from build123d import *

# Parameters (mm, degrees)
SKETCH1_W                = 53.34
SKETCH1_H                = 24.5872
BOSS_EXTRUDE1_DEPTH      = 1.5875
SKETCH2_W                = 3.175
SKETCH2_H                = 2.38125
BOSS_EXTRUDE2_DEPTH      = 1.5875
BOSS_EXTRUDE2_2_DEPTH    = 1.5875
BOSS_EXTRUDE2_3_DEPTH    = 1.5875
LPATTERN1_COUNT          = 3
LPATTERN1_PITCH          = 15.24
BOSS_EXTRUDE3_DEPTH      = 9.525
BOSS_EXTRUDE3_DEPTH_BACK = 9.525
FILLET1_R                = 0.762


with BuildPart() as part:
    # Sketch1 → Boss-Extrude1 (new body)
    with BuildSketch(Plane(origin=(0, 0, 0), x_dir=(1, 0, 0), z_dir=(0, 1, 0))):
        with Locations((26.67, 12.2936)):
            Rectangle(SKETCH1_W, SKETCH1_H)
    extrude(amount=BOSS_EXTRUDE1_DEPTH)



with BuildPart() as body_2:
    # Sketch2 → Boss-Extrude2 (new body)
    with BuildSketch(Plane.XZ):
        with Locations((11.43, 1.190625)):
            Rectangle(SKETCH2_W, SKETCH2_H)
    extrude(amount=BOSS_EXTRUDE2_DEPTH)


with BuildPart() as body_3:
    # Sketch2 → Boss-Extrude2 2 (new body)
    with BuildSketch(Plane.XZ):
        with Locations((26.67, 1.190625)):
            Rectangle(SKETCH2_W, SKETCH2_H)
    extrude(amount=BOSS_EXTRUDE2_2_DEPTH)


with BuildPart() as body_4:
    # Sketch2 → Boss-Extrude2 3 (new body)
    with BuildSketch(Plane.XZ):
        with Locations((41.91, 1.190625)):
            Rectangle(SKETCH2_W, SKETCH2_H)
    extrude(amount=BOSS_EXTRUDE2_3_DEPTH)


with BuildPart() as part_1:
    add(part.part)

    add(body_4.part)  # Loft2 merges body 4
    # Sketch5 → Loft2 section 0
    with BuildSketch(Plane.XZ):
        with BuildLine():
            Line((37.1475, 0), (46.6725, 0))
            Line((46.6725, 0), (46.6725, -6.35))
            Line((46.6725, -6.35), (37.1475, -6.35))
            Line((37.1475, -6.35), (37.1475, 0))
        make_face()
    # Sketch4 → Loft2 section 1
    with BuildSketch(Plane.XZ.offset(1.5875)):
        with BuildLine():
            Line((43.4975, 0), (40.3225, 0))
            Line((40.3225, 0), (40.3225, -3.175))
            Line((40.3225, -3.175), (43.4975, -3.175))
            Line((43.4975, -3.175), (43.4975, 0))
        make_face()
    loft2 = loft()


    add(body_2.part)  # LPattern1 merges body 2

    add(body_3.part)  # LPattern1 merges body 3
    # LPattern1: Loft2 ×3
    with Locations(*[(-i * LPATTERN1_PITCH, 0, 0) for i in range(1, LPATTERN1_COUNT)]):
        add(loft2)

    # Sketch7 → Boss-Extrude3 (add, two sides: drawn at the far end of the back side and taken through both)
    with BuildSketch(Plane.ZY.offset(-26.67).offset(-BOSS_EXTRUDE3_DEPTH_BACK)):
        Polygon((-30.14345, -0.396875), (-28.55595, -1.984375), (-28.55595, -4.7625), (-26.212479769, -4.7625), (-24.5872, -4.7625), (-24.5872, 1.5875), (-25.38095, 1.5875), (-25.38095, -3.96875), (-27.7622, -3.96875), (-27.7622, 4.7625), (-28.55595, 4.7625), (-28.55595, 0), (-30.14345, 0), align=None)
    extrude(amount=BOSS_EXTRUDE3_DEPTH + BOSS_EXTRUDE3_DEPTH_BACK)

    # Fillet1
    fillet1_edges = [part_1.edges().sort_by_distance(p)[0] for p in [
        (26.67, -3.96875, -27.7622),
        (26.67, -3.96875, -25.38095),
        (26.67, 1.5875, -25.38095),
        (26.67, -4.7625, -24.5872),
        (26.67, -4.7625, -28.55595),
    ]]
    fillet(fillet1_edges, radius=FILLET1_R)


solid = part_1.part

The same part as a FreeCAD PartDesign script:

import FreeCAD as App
import Part
import Sketcher
from FreeCAD import Vector
Q = App.Units.Quantity


def edges_at(feature, points):
    """Names of the edges that pass closest to the given points."""
    edges = feature.Shape.Edges
    near = lambda p: min(range(len(edges)), key=lambda i: edges[i].distToShape(Part.Vertex(*p))[0])
    return sorted({f"Edge{near(p) + 1}" for p in points})

doc = App.newDocument("Part")
params = doc.addObject("Spreadsheet::Sheet", "Params")
for row, (alias, value) in enumerate([
    ("sketch1_width", "2.1 in"),
    ("sketch1_height", "0.968 in"),
    ("pad1_length", "0.0625 in"),
    ("sketch2_width", "0.125 in"),
    ("sketch2_height", "0.09375 in"),
    ("pad2_length", "0.0625 in"),
    ("sketch3_width", "0.125 in"),
    ("sketch3_height", "0.09375 in"),
    ("pad3_length", "0.0625 in"),
    ("sketch4_width", "0.125 in"),
    ("sketch4_height", "0.09375 in"),
    ("pad4_length", "0.0625 in"),
    ("sketch5_height", "0.25 in"),
    ("sketch5_width", "0.375 in"),
    ("sketch6_width", "0.125 in"),
    ("linearpattern_pitch", "0.6 in"),
    ("sketch7_width", "0.25 in"),
    ("sketch7_width2", "0.109375 in"),
    ("sketch7_width3", "0.21875 in"),
    ("sketch7_width4", "0.34375 in"),
    ("sketch7_width5", "0.015625 in"),
    ("pad5_length", "0.375 in"),
    ("pad5_length2", "0.375 in"),
    ("fillet_radius", "0.03 in"),
], start=1):
    params.set(f"A{row}", alias)
    params.set(f"B{row}", "=" + value)
    params.setAlias(f"B{row}", alias)

body = doc.addObject("PartDesign::Body", "Body")

# Sketch on XZ plane
sketch1 = doc.addObject("Sketcher::SketchObject", "Sketch")
body.addObject(sketch1)
sketch1.AttachmentSupport = (doc.XZ_Plane, [""])
sketch1.MapMode = "FlatFace"
sketch1.addGeometry(Part.LineSegment(Vector(0, -25, 0), Vector(0, 0, 0)), False)
sketch1.addGeometry(Part.LineSegment(Vector(0, 0, 0), Vector(53, 0, 0)), False)
sketch1.addGeometry(Part.LineSegment(Vector(53, 0, 0), Vector(53, -25, 0)), False)
sketch1.addGeometry(Part.LineSegment(Vector(53, -25, 0), Vector(0, -25, 0)), False)
sketch1.addConstraint(Sketcher.Constraint("Coincident", 0, 2, 1, 1))
sketch1.addConstraint(Sketcher.Constraint("Coincident", 1, 2, 2, 1))
sketch1.addConstraint(Sketcher.Constraint("Coincident", 2, 2, 3, 1))
sketch1.addConstraint(Sketcher.Constraint("Coincident", 3, 2, 0, 1))
sketch1.addConstraint(Sketcher.Constraint("Vertical", 0))
sketch1.addConstraint(Sketcher.Constraint("Horizontal", 1))
sketch1.addConstraint(Sketcher.Constraint("Vertical", 2))
sketch1.addConstraint(Sketcher.Constraint("Horizontal", 3))
sketch1.addConstraint(Sketcher.Constraint("Coincident", 0, 2, -1, 1))
sketch1.addConstraint(Sketcher.Constraint("DistanceX", 1, 1, 1, 2, Q("2.1 in")))
sketch1.addConstraint(Sketcher.Constraint("DistanceY", 0, 1, 0, 2, Q("0.968 in")))
sketch1.setExpression("Constraints[9]", "Params.sketch1_width")
sketch1.setExpression("Constraints[10]", "Params.sketch1_height")
pad1 = doc.addObject("PartDesign::Pad", "Pad")
body.addObject(pad1)
pad1.Profile = sketch1
pad1.setExpression("Length", "Params.pad1_length")
pad1.Reversed = True
body2 = doc.addObject("PartDesign::Body", "Body001")

# Sketch on XZ plane
sketch2 = doc.addObject("Sketcher::SketchObject", "Sketch001")
body2.addObject(sketch2)
sketch2.AttachmentSupport = (doc.getObject("XZ_Plane001"), [""])
sketch2.MapMode = "FlatFace"
sketch2.addGeometry(Part.LineSegment(Vector(9.8, 2.4, 0), Vector(9.8, 0, 0)), False)
sketch2.addGeometry(Part.LineSegment(Vector(9.8, 0, 0), Vector(13, 0, 0)), False)
sketch2.addGeometry(Part.LineSegment(Vector(13, 0, 0), Vector(13, 2.4, 0)), False)
sketch2.addGeometry(Part.LineSegment(Vector(13, 2.4, 0), Vector(9.8, 2.4, 0)), False)
sketch2.addConstraint(Sketcher.Constraint("Coincident", 0, 2, 1, 1))
sketch2.addConstraint(Sketcher.Constraint("Coincident", 1, 2, 2, 1))
sketch2.addConstraint(Sketcher.Constraint("Coincident", 2, 2, 3, 1))
sketch2.addConstraint(Sketcher.Constraint("Coincident", 3, 2, 0, 1))
sketch2.addConstraint(Sketcher.Constraint("Vertical", 0))
sketch2.addConstraint(Sketcher.Constraint("Horizontal", 1))
sketch2.addConstraint(Sketcher.Constraint("Vertical", 2))
sketch2.addConstraint(Sketcher.Constraint("Horizontal", 3))
sketch2.addConstraint(Sketcher.Constraint("PointOnObject", 0, 2, -1))
sketch2.addConstraint(Sketcher.Constraint("DistanceX", 1, 1, 1, 2, Q("0.125 in")))
sketch2.addConstraint(Sketcher.Constraint("DistanceY", 0, 2, 0, 1, Q("0.09375 in")))
sketch2.addConstraint(Sketcher.Constraint("DistanceX", -1, 1, 0, 2, Q("0.3875 in")))
sketch2.setExpression("Constraints[9]", "Params.sketch2_width")
sketch2.setExpression("Constraints[10]", "Params.sketch2_height")
pad2 = doc.addObject("PartDesign::Pad", "Pad001")
body2.addObject(pad2)
pad2.Profile = sketch2
pad2.setExpression("Length", "Params.pad2_length")
body3 = doc.addObject("PartDesign::Body", "Body002")

# Sketch on XZ plane
sketch3 = doc.addObject("Sketcher::SketchObject", "Sketch002")
body3.addObject(sketch3)
sketch3.AttachmentSupport = (doc.getObject("XZ_Plane002"), [""])
sketch3.MapMode = "FlatFace"
sketch3.addGeometry(Part.LineSegment(Vector(25.1, 2.4, 0), Vector(25.1, 0, 0)), False)
sketch3.addGeometry(Part.LineSegment(Vector(25.1, 0, 0), Vector(28.3, 0, 0)), False)
sketch3.addGeometry(Part.LineSegment(Vector(28.3, 0, 0), Vector(28.3, 2.4, 0)), False)
sketch3.addGeometry(Part.LineSegment(Vector(28.3, 2.4, 0), Vector(25.1, 2.4, 0)), False)
sketch3.addConstraint(Sketcher.Constraint("Coincident", 0, 2, 1, 1))
sketch3.addConstraint(Sketcher.Constraint("Coincident", 1, 2, 2, 1))
sketch3.addConstraint(Sketcher.Constraint("Coincident", 2, 2, 3, 1))
sketch3.addConstraint(Sketcher.Constraint("Coincident", 3, 2, 0, 1))
sketch3.addConstraint(Sketcher.Constraint("Vertical", 0))
sketch3.addConstraint(Sketcher.Constraint("Horizontal", 1))
sketch3.addConstraint(Sketcher.Constraint("Vertical", 2))
sketch3.addConstraint(Sketcher.Constraint("Horizontal", 3))
sketch3.addConstraint(Sketcher.Constraint("PointOnObject", 0, 2, -1))
sketch3.addConstraint(Sketcher.Constraint("DistanceX", 1, 1, 1, 2, Q("0.125 in")))
sketch3.addConstraint(Sketcher.Constraint("DistanceY", 0, 2, 0, 1, Q("0.09375 in")))
sketch3.addConstraint(Sketcher.Constraint("DistanceX", -1, 1, 0, 2, Q("0.9875 in")))
sketch3.setExpression("Constraints[9]", "Params.sketch3_width")
sketch3.setExpression("Constraints[10]", "Params.sketch3_height")
pad3 = doc.addObject("PartDesign::Pad", "Pad002")
body3.addObject(pad3)
pad3.Profile = sketch3
pad3.setExpression("Length", "Params.pad3_length")
body4 = doc.addObject("PartDesign::Body", "Body003")

# Sketch on XZ plane
sketch4 = doc.addObject("Sketcher::SketchObject", "Sketch003")
body4.addObject(sketch4)
sketch4.AttachmentSupport = (doc.getObject("XZ_Plane003"), [""])
sketch4.MapMode = "FlatFace"
sketch4.addGeometry(Part.LineSegment(Vector(40.3, 2.4, 0), Vector(40.3, 0, 0)), False)
sketch4.addGeometry(Part.LineSegment(Vector(40.3, 0, 0), Vector(43.5, 0, 0)), False)
sketch4.addGeometry(Part.LineSegment(Vector(43.5, 0, 0), Vector(43.5, 2.4, 0)), False)
sketch4.addGeometry(Part.LineSegment(Vector(43.5, 2.4, 0), Vector(40.3, 2.4, 0)), False)
sketch4.addConstraint(Sketcher.Constraint("Coincident", 0, 2, 1, 1))
sketch4.addConstraint(Sketcher.Constraint("Coincident", 1, 2, 2, 1))
sketch4.addConstraint(Sketcher.Constraint("Coincident", 2, 2, 3, 1))
sketch4.addConstraint(Sketcher.Constraint("Coincident", 3, 2, 0, 1))
sketch4.addConstraint(Sketcher.Constraint("Vertical", 0))
sketch4.addConstraint(Sketcher.Constraint("Horizontal", 1))
sketch4.addConstraint(Sketcher.Constraint("Vertical", 2))
sketch4.addConstraint(Sketcher.Constraint("Horizontal", 3))
sketch4.addConstraint(Sketcher.Constraint("PointOnObject", 0, 2, -1))
sketch4.addConstraint(Sketcher.Constraint("DistanceX", 1, 1, 1, 2, Q("0.125 in")))
sketch4.addConstraint(Sketcher.Constraint("DistanceY", 0, 2, 0, 1, Q("0.09375 in")))
sketch4.addConstraint(Sketcher.Constraint("DistanceX", -1, 1, 0, 2, Q("1.5875 in")))
sketch4.setExpression("Constraints[9]", "Params.sketch4_width")
sketch4.setExpression("Constraints[10]", "Params.sketch4_height")
pad4 = doc.addObject("PartDesign::Pad", "Pad003")
body4.addObject(pad4)
pad4.Profile = sketch4
pad4.setExpression("Length", "Params.pad4_length")
body.AllowCompound = True
doc.recompute()

boolean = doc.addObject("PartDesign::Boolean", "Boolean")
body.addObject(boolean)
boolean.Type = "Fuse"
boolean.addObjects([body4])

# Sketch on XZ plane
sketch5 = doc.addObject("Sketcher::SketchObject", "Sketch004")
body.addObject(sketch5)
sketch5.AttachmentSupport = (doc.XZ_Plane, [""])
sketch5.MapMode = "FlatFace"
sketch5.addGeometry(Part.LineSegment(Vector(47, 0, 0), Vector(37, 0, 0)), False)
sketch5.addGeometry(Part.LineSegment(Vector(37, 0, 0), Vector(37, -6, 0)), False)
sketch5.addGeometry(Part.LineSegment(Vector(37, -6, 0), Vector(47, -6, 0)), False)
sketch5.addGeometry(Part.LineSegment(Vector(47, -6, 0), Vector(47, 0, 0)), False)
sketch5.addConstraint(Sketcher.Constraint("Coincident", 0, 2, 1, 1))
sketch5.addConstraint(Sketcher.Constraint("Coincident", 1, 2, 2, 1))
sketch5.addConstraint(Sketcher.Constraint("Coincident", 2, 2, 3, 1))
sketch5.addConstraint(Sketcher.Constraint("Coincident", 3, 2, 0, 1))
sketch5.addConstraint(Sketcher.Constraint("Horizontal", 0))
sketch5.addConstraint(Sketcher.Constraint("Vertical", 1))
sketch5.addConstraint(Sketcher.Constraint("Horizontal", 2))
sketch5.addConstraint(Sketcher.Constraint("Vertical", 3))
sketch5.addConstraint(Sketcher.Constraint("PointOnObject", 0, 2, -1))
sketch5.addConstraint(Sketcher.Constraint("DistanceY", 1, 2, 1, 1, Q("0.25 in")))
sketch5.addConstraint(Sketcher.Constraint("DistanceX", 0, 2, 0, 1, Q("0.375 in")))
sketch5.addConstraint(Sketcher.Constraint("DistanceX", -1, 1, 0, 2, Q("1.4625 in")))
sketch5.setExpression("Constraints[9]", "Params.sketch5_height")
sketch5.setExpression("Constraints[10]", "Params.sketch5_width")

# Sketch on XZ plane
sketch6 = doc.addObject("Sketcher::SketchObject", "Sketch005")
body.addObject(sketch6)
sketch6.AttachmentSupport = (doc.XZ_Plane, [""])
sketch6.MapMode = "FlatFace"
sketch6.AttachmentOffset = App.Placement(Vector(0, 0, 0.0625 * 25.4), App.Rotation())
sketch6.addGeometry(Part.LineSegment(Vector(43.5, 0, 0), Vector(40.3, 0, 0)), False)
sketch6.addGeometry(Part.LineSegment(Vector(40.3, 0, 0), Vector(40.3, -3.2, 0)), False)
sketch6.addGeometry(Part.LineSegment(Vector(40.3, -3.2, 0), Vector(43.5, -3.2, 0)), False)
sketch6.addGeometry(Part.LineSegment(Vector(43.5, -3.2, 0), Vector(43.5, 0, 0)), False)
sketch6.addConstraint(Sketcher.Constraint("Coincident", 0, 2, 1, 1))
sketch6.addConstraint(Sketcher.Constraint("Coincident", 1, 2, 2, 1))
sketch6.addConstraint(Sketcher.Constraint("Coincident", 2, 2, 3, 1))
sketch6.addConstraint(Sketcher.Constraint("Coincident", 3, 2, 0, 1))
sketch6.addConstraint(Sketcher.Constraint("Horizontal", 0))
sketch6.addConstraint(Sketcher.Constraint("Vertical", 1))
sketch6.addConstraint(Sketcher.Constraint("Horizontal", 2))
sketch6.addConstraint(Sketcher.Constraint("Vertical", 3))
sketch6.addConstraint(Sketcher.Constraint("PointOnObject", 0, 2, -1))
sketch6.addConstraint(Sketcher.Constraint("Equal", 2, 1))
sketch6.addConstraint(Sketcher.Constraint("DistanceX", 0, 2, 0, 1, Q("0.125 in")))
sketch6.addConstraint(Sketcher.Constraint("DistanceX", -1, 1, 0, 2, Q("1.5875 in")))
sketch6.setExpression("Constraints[10]", "Params.sketch6_width")

additiveloft = doc.addObject("PartDesign::AdditiveLoft", "AdditiveLoft")
body.addObject(additiveloft)
additiveloft.Profile = sketch5
additiveloft.Sections = [sketch6]
doc.recompute()

boolean2 = doc.addObject("PartDesign::Boolean", "Boolean001")
body.addObject(boolean2)
boolean2.Type = "Fuse"
boolean2.addObjects([body2])
doc.recompute()

boolean3 = doc.addObject("PartDesign::Boolean", "Boolean002")
body.addObject(boolean3)
boolean3.Type = "Fuse"
boolean3.addObjects([body3])
doc.recompute()

linearpattern = doc.addObject("PartDesign::LinearPattern", "LinearPattern")
body.addObject(linearpattern)
linearpattern.Originals = [additiveloft]
linearpattern.Direction = (doc.X_Axis, [""])
linearpattern.Mode = "offset"
linearpattern.setExpression("Offset", "Params.linearpattern_pitch")
linearpattern.Occurrences = 3
linearpattern.Reversed = True
body.Tip = linearpattern

# Sketch on YZ plane
sketch7 = doc.addObject("Sketcher::SketchObject", "Sketch006")
body.addObject(sketch7)
sketch7.AttachmentSupport = (doc.YZ_Plane, [""])
sketch7.MapMode = "FlatFace"
sketch7.AttachmentOffset = App.Placement(Vector(0, 0, 1.05 * 25.4), App.Rotation())
sketch7.addGeometry(Part.LineSegment(Vector(-0.4, -30.14, 0), Vector(-1.98, -28.56, 0)), False)
sketch7.addGeometry(Part.LineSegment(Vector(-1.98, -28.56, 0), Vector(-4.76, -28.56, 0)), False)
sketch7.addGeometry(Part.LineSegment(Vector(-4.76, -28.56, 0), Vector(-4.76, -24.59, 0)), False)
sketch7.addGeometry(Part.LineSegment(Vector(-4.76, -24.59, 0), Vector(1.59, -24.59, 0)), False)
sketch7.addGeometry(Part.LineSegment(Vector(1.59, -24.59, 0), Vector(1.59, -25.38, 0)), False)
sketch7.addGeometry(Part.LineSegment(Vector(1.59, -25.38, 0), Vector(-3.97, -25.38, 0)), False)
sketch7.addGeometry(Part.LineSegment(Vector(-3.97, -25.38, 0), Vector(-3.97, -27.76, 0)), False)
sketch7.addGeometry(Part.LineSegment(Vector(-3.97, -27.76, 0), Vector(4.76, -27.76, 0)), False)
sketch7.addGeometry(Part.LineSegment(Vector(4.76, -27.76, 0), Vector(4.76, -28.56, 0)), False)
sketch7.addGeometry(Part.LineSegment(Vector(4.76, -28.56, 0), Vector(0, -28.56, 0)), False)
sketch7.addGeometry(Part.LineSegment(Vector(0, -28.56, 0), Vector(0, -30.14, 0)), False)
sketch7.addGeometry(Part.LineSegment(Vector(0, -30.14, 0), Vector(-0.4, -30.14, 0)), False)
sketch7.addConstraint(Sketcher.Constraint("Coincident", 0, 2, 1, 1))
sketch7.addConstraint(Sketcher.Constraint("Coincident", 1, 2, 2, 1))
sketch7.addConstraint(Sketcher.Constraint("Coincident", 2, 2, 3, 1))
sketch7.addConstraint(Sketcher.Constraint("Coincident", 3, 2, 4, 1))
sketch7.addConstraint(Sketcher.Constraint("Coincident", 4, 2, 5, 1))
sketch7.addConstraint(Sketcher.Constraint("Coincident", 5, 2, 6, 1))
sketch7.addConstraint(Sketcher.Constraint("Coincident", 6, 2, 7, 1))
sketch7.addConstraint(Sketcher.Constraint("Coincident", 7, 2, 8, 1))
sketch7.addConstraint(Sketcher.Constraint("Coincident", 8, 2, 9, 1))
sketch7.addConstraint(Sketcher.Constraint("Coincident", 9, 2, 10, 1))
sketch7.addConstraint(Sketcher.Constraint("Coincident", 10, 2, 11, 1))
sketch7.addConstraint(Sketcher.Constraint("Coincident", 11, 2, 0, 1))
sketch7.addConstraint(Sketcher.Constraint("Horizontal", 1))
sketch7.addConstraint(Sketcher.Constraint("Vertical", 2))
sketch7.addConstraint(Sketcher.Constraint("Horizontal", 3))
sketch7.addConstraint(Sketcher.Constraint("Vertical", 4))
sketch7.addConstraint(Sketcher.Constraint("Horizontal", 5))
sketch7.addConstraint(Sketcher.Constraint("Vertical", 6))
sketch7.addConstraint(Sketcher.Constraint("Horizontal", 7))
sketch7.addConstraint(Sketcher.Constraint("Vertical", 8))
sketch7.addConstraint(Sketcher.Constraint("Horizontal", 9))
sketch7.addConstraint(Sketcher.Constraint("Vertical", 10))
sketch7.addConstraint(Sketcher.Constraint("Horizontal", 11))
sketch7.addConstraint(Sketcher.Constraint("Symmetric", 1, 2, 8, 2, -2))
sketch7.addConstraint(Sketcher.Constraint("PointOnObject", 9, 2, -2))
sketch7.addConstraint(Sketcher.Constraint("Equal", 4, 8))
sketch7.addConstraint(Sketcher.Constraint("Angle", 0, Q("135 deg")))
sketch7.addConstraint(Sketcher.Constraint("DistanceX", 3, 1, 3, 2, Q("0.25 in")))
sketch7.addConstraint(Sketcher.Constraint("DistanceX", 1, 2, 1, 1, Q("0.109375 in")))
sketch7.addConstraint(Sketcher.Constraint("DistanceX", 5, 2, 5, 1, Q("0.21875 in")))
sketch7.addConstraint(Sketcher.Constraint("DistanceX", 7, 1, 7, 2, Q("0.34375 in")))
sketch7.addConstraint(Sketcher.Constraint("DistanceX", 11, 2, 11, 1, Q("0.015625 in")))
sketch7.addConstraint(Sketcher.Constraint("DistanceY", 2, 1, 2, 2, Q("0.15625 in")))
sketch7.addConstraint(Sketcher.Constraint("DistanceY", 4, 2, 4, 1, Q("0.03125 in")))
sketch7.addConstraint(Sketcher.Constraint("DistanceY", 2, 2, -1, 1, Q("0.968 in")))
sketch7.setExpression("Constraints[27]", "Params.sketch7_width")
sketch7.setExpression("Constraints[28]", "Params.sketch7_width2")
sketch7.setExpression("Constraints[29]", "Params.sketch7_width3")
sketch7.setExpression("Constraints[30]", "Params.sketch7_width4")
sketch7.setExpression("Constraints[31]", "Params.sketch7_width5")
pad5 = doc.addObject("PartDesign::Pad", "Pad004")
body.addObject(pad5)
pad5.Profile = sketch7
pad5.Type = "TwoLengths"
pad5.setExpression("Length", "Params.pad5_length")
pad5.setExpression("Length2", "Params.pad5_length2")
pad5.Reversed = True
doc.recompute()

fillet = doc.addObject("PartDesign::Fillet", "Fillet")
body.addObject(fillet)
fillet.Base = (pad5, edges_at(pad5, [
    (26.67, -3.969, -27.762),
    (26.67, -3.969, -25.381),
    (26.67, 1.587, -25.381),
    (26.67, -4.763, -24.587),
    (26.67, -4.763, -28.556),
]))
fillet.setExpression("Radius", "Params.fillet_radius")

doc.recompute()
